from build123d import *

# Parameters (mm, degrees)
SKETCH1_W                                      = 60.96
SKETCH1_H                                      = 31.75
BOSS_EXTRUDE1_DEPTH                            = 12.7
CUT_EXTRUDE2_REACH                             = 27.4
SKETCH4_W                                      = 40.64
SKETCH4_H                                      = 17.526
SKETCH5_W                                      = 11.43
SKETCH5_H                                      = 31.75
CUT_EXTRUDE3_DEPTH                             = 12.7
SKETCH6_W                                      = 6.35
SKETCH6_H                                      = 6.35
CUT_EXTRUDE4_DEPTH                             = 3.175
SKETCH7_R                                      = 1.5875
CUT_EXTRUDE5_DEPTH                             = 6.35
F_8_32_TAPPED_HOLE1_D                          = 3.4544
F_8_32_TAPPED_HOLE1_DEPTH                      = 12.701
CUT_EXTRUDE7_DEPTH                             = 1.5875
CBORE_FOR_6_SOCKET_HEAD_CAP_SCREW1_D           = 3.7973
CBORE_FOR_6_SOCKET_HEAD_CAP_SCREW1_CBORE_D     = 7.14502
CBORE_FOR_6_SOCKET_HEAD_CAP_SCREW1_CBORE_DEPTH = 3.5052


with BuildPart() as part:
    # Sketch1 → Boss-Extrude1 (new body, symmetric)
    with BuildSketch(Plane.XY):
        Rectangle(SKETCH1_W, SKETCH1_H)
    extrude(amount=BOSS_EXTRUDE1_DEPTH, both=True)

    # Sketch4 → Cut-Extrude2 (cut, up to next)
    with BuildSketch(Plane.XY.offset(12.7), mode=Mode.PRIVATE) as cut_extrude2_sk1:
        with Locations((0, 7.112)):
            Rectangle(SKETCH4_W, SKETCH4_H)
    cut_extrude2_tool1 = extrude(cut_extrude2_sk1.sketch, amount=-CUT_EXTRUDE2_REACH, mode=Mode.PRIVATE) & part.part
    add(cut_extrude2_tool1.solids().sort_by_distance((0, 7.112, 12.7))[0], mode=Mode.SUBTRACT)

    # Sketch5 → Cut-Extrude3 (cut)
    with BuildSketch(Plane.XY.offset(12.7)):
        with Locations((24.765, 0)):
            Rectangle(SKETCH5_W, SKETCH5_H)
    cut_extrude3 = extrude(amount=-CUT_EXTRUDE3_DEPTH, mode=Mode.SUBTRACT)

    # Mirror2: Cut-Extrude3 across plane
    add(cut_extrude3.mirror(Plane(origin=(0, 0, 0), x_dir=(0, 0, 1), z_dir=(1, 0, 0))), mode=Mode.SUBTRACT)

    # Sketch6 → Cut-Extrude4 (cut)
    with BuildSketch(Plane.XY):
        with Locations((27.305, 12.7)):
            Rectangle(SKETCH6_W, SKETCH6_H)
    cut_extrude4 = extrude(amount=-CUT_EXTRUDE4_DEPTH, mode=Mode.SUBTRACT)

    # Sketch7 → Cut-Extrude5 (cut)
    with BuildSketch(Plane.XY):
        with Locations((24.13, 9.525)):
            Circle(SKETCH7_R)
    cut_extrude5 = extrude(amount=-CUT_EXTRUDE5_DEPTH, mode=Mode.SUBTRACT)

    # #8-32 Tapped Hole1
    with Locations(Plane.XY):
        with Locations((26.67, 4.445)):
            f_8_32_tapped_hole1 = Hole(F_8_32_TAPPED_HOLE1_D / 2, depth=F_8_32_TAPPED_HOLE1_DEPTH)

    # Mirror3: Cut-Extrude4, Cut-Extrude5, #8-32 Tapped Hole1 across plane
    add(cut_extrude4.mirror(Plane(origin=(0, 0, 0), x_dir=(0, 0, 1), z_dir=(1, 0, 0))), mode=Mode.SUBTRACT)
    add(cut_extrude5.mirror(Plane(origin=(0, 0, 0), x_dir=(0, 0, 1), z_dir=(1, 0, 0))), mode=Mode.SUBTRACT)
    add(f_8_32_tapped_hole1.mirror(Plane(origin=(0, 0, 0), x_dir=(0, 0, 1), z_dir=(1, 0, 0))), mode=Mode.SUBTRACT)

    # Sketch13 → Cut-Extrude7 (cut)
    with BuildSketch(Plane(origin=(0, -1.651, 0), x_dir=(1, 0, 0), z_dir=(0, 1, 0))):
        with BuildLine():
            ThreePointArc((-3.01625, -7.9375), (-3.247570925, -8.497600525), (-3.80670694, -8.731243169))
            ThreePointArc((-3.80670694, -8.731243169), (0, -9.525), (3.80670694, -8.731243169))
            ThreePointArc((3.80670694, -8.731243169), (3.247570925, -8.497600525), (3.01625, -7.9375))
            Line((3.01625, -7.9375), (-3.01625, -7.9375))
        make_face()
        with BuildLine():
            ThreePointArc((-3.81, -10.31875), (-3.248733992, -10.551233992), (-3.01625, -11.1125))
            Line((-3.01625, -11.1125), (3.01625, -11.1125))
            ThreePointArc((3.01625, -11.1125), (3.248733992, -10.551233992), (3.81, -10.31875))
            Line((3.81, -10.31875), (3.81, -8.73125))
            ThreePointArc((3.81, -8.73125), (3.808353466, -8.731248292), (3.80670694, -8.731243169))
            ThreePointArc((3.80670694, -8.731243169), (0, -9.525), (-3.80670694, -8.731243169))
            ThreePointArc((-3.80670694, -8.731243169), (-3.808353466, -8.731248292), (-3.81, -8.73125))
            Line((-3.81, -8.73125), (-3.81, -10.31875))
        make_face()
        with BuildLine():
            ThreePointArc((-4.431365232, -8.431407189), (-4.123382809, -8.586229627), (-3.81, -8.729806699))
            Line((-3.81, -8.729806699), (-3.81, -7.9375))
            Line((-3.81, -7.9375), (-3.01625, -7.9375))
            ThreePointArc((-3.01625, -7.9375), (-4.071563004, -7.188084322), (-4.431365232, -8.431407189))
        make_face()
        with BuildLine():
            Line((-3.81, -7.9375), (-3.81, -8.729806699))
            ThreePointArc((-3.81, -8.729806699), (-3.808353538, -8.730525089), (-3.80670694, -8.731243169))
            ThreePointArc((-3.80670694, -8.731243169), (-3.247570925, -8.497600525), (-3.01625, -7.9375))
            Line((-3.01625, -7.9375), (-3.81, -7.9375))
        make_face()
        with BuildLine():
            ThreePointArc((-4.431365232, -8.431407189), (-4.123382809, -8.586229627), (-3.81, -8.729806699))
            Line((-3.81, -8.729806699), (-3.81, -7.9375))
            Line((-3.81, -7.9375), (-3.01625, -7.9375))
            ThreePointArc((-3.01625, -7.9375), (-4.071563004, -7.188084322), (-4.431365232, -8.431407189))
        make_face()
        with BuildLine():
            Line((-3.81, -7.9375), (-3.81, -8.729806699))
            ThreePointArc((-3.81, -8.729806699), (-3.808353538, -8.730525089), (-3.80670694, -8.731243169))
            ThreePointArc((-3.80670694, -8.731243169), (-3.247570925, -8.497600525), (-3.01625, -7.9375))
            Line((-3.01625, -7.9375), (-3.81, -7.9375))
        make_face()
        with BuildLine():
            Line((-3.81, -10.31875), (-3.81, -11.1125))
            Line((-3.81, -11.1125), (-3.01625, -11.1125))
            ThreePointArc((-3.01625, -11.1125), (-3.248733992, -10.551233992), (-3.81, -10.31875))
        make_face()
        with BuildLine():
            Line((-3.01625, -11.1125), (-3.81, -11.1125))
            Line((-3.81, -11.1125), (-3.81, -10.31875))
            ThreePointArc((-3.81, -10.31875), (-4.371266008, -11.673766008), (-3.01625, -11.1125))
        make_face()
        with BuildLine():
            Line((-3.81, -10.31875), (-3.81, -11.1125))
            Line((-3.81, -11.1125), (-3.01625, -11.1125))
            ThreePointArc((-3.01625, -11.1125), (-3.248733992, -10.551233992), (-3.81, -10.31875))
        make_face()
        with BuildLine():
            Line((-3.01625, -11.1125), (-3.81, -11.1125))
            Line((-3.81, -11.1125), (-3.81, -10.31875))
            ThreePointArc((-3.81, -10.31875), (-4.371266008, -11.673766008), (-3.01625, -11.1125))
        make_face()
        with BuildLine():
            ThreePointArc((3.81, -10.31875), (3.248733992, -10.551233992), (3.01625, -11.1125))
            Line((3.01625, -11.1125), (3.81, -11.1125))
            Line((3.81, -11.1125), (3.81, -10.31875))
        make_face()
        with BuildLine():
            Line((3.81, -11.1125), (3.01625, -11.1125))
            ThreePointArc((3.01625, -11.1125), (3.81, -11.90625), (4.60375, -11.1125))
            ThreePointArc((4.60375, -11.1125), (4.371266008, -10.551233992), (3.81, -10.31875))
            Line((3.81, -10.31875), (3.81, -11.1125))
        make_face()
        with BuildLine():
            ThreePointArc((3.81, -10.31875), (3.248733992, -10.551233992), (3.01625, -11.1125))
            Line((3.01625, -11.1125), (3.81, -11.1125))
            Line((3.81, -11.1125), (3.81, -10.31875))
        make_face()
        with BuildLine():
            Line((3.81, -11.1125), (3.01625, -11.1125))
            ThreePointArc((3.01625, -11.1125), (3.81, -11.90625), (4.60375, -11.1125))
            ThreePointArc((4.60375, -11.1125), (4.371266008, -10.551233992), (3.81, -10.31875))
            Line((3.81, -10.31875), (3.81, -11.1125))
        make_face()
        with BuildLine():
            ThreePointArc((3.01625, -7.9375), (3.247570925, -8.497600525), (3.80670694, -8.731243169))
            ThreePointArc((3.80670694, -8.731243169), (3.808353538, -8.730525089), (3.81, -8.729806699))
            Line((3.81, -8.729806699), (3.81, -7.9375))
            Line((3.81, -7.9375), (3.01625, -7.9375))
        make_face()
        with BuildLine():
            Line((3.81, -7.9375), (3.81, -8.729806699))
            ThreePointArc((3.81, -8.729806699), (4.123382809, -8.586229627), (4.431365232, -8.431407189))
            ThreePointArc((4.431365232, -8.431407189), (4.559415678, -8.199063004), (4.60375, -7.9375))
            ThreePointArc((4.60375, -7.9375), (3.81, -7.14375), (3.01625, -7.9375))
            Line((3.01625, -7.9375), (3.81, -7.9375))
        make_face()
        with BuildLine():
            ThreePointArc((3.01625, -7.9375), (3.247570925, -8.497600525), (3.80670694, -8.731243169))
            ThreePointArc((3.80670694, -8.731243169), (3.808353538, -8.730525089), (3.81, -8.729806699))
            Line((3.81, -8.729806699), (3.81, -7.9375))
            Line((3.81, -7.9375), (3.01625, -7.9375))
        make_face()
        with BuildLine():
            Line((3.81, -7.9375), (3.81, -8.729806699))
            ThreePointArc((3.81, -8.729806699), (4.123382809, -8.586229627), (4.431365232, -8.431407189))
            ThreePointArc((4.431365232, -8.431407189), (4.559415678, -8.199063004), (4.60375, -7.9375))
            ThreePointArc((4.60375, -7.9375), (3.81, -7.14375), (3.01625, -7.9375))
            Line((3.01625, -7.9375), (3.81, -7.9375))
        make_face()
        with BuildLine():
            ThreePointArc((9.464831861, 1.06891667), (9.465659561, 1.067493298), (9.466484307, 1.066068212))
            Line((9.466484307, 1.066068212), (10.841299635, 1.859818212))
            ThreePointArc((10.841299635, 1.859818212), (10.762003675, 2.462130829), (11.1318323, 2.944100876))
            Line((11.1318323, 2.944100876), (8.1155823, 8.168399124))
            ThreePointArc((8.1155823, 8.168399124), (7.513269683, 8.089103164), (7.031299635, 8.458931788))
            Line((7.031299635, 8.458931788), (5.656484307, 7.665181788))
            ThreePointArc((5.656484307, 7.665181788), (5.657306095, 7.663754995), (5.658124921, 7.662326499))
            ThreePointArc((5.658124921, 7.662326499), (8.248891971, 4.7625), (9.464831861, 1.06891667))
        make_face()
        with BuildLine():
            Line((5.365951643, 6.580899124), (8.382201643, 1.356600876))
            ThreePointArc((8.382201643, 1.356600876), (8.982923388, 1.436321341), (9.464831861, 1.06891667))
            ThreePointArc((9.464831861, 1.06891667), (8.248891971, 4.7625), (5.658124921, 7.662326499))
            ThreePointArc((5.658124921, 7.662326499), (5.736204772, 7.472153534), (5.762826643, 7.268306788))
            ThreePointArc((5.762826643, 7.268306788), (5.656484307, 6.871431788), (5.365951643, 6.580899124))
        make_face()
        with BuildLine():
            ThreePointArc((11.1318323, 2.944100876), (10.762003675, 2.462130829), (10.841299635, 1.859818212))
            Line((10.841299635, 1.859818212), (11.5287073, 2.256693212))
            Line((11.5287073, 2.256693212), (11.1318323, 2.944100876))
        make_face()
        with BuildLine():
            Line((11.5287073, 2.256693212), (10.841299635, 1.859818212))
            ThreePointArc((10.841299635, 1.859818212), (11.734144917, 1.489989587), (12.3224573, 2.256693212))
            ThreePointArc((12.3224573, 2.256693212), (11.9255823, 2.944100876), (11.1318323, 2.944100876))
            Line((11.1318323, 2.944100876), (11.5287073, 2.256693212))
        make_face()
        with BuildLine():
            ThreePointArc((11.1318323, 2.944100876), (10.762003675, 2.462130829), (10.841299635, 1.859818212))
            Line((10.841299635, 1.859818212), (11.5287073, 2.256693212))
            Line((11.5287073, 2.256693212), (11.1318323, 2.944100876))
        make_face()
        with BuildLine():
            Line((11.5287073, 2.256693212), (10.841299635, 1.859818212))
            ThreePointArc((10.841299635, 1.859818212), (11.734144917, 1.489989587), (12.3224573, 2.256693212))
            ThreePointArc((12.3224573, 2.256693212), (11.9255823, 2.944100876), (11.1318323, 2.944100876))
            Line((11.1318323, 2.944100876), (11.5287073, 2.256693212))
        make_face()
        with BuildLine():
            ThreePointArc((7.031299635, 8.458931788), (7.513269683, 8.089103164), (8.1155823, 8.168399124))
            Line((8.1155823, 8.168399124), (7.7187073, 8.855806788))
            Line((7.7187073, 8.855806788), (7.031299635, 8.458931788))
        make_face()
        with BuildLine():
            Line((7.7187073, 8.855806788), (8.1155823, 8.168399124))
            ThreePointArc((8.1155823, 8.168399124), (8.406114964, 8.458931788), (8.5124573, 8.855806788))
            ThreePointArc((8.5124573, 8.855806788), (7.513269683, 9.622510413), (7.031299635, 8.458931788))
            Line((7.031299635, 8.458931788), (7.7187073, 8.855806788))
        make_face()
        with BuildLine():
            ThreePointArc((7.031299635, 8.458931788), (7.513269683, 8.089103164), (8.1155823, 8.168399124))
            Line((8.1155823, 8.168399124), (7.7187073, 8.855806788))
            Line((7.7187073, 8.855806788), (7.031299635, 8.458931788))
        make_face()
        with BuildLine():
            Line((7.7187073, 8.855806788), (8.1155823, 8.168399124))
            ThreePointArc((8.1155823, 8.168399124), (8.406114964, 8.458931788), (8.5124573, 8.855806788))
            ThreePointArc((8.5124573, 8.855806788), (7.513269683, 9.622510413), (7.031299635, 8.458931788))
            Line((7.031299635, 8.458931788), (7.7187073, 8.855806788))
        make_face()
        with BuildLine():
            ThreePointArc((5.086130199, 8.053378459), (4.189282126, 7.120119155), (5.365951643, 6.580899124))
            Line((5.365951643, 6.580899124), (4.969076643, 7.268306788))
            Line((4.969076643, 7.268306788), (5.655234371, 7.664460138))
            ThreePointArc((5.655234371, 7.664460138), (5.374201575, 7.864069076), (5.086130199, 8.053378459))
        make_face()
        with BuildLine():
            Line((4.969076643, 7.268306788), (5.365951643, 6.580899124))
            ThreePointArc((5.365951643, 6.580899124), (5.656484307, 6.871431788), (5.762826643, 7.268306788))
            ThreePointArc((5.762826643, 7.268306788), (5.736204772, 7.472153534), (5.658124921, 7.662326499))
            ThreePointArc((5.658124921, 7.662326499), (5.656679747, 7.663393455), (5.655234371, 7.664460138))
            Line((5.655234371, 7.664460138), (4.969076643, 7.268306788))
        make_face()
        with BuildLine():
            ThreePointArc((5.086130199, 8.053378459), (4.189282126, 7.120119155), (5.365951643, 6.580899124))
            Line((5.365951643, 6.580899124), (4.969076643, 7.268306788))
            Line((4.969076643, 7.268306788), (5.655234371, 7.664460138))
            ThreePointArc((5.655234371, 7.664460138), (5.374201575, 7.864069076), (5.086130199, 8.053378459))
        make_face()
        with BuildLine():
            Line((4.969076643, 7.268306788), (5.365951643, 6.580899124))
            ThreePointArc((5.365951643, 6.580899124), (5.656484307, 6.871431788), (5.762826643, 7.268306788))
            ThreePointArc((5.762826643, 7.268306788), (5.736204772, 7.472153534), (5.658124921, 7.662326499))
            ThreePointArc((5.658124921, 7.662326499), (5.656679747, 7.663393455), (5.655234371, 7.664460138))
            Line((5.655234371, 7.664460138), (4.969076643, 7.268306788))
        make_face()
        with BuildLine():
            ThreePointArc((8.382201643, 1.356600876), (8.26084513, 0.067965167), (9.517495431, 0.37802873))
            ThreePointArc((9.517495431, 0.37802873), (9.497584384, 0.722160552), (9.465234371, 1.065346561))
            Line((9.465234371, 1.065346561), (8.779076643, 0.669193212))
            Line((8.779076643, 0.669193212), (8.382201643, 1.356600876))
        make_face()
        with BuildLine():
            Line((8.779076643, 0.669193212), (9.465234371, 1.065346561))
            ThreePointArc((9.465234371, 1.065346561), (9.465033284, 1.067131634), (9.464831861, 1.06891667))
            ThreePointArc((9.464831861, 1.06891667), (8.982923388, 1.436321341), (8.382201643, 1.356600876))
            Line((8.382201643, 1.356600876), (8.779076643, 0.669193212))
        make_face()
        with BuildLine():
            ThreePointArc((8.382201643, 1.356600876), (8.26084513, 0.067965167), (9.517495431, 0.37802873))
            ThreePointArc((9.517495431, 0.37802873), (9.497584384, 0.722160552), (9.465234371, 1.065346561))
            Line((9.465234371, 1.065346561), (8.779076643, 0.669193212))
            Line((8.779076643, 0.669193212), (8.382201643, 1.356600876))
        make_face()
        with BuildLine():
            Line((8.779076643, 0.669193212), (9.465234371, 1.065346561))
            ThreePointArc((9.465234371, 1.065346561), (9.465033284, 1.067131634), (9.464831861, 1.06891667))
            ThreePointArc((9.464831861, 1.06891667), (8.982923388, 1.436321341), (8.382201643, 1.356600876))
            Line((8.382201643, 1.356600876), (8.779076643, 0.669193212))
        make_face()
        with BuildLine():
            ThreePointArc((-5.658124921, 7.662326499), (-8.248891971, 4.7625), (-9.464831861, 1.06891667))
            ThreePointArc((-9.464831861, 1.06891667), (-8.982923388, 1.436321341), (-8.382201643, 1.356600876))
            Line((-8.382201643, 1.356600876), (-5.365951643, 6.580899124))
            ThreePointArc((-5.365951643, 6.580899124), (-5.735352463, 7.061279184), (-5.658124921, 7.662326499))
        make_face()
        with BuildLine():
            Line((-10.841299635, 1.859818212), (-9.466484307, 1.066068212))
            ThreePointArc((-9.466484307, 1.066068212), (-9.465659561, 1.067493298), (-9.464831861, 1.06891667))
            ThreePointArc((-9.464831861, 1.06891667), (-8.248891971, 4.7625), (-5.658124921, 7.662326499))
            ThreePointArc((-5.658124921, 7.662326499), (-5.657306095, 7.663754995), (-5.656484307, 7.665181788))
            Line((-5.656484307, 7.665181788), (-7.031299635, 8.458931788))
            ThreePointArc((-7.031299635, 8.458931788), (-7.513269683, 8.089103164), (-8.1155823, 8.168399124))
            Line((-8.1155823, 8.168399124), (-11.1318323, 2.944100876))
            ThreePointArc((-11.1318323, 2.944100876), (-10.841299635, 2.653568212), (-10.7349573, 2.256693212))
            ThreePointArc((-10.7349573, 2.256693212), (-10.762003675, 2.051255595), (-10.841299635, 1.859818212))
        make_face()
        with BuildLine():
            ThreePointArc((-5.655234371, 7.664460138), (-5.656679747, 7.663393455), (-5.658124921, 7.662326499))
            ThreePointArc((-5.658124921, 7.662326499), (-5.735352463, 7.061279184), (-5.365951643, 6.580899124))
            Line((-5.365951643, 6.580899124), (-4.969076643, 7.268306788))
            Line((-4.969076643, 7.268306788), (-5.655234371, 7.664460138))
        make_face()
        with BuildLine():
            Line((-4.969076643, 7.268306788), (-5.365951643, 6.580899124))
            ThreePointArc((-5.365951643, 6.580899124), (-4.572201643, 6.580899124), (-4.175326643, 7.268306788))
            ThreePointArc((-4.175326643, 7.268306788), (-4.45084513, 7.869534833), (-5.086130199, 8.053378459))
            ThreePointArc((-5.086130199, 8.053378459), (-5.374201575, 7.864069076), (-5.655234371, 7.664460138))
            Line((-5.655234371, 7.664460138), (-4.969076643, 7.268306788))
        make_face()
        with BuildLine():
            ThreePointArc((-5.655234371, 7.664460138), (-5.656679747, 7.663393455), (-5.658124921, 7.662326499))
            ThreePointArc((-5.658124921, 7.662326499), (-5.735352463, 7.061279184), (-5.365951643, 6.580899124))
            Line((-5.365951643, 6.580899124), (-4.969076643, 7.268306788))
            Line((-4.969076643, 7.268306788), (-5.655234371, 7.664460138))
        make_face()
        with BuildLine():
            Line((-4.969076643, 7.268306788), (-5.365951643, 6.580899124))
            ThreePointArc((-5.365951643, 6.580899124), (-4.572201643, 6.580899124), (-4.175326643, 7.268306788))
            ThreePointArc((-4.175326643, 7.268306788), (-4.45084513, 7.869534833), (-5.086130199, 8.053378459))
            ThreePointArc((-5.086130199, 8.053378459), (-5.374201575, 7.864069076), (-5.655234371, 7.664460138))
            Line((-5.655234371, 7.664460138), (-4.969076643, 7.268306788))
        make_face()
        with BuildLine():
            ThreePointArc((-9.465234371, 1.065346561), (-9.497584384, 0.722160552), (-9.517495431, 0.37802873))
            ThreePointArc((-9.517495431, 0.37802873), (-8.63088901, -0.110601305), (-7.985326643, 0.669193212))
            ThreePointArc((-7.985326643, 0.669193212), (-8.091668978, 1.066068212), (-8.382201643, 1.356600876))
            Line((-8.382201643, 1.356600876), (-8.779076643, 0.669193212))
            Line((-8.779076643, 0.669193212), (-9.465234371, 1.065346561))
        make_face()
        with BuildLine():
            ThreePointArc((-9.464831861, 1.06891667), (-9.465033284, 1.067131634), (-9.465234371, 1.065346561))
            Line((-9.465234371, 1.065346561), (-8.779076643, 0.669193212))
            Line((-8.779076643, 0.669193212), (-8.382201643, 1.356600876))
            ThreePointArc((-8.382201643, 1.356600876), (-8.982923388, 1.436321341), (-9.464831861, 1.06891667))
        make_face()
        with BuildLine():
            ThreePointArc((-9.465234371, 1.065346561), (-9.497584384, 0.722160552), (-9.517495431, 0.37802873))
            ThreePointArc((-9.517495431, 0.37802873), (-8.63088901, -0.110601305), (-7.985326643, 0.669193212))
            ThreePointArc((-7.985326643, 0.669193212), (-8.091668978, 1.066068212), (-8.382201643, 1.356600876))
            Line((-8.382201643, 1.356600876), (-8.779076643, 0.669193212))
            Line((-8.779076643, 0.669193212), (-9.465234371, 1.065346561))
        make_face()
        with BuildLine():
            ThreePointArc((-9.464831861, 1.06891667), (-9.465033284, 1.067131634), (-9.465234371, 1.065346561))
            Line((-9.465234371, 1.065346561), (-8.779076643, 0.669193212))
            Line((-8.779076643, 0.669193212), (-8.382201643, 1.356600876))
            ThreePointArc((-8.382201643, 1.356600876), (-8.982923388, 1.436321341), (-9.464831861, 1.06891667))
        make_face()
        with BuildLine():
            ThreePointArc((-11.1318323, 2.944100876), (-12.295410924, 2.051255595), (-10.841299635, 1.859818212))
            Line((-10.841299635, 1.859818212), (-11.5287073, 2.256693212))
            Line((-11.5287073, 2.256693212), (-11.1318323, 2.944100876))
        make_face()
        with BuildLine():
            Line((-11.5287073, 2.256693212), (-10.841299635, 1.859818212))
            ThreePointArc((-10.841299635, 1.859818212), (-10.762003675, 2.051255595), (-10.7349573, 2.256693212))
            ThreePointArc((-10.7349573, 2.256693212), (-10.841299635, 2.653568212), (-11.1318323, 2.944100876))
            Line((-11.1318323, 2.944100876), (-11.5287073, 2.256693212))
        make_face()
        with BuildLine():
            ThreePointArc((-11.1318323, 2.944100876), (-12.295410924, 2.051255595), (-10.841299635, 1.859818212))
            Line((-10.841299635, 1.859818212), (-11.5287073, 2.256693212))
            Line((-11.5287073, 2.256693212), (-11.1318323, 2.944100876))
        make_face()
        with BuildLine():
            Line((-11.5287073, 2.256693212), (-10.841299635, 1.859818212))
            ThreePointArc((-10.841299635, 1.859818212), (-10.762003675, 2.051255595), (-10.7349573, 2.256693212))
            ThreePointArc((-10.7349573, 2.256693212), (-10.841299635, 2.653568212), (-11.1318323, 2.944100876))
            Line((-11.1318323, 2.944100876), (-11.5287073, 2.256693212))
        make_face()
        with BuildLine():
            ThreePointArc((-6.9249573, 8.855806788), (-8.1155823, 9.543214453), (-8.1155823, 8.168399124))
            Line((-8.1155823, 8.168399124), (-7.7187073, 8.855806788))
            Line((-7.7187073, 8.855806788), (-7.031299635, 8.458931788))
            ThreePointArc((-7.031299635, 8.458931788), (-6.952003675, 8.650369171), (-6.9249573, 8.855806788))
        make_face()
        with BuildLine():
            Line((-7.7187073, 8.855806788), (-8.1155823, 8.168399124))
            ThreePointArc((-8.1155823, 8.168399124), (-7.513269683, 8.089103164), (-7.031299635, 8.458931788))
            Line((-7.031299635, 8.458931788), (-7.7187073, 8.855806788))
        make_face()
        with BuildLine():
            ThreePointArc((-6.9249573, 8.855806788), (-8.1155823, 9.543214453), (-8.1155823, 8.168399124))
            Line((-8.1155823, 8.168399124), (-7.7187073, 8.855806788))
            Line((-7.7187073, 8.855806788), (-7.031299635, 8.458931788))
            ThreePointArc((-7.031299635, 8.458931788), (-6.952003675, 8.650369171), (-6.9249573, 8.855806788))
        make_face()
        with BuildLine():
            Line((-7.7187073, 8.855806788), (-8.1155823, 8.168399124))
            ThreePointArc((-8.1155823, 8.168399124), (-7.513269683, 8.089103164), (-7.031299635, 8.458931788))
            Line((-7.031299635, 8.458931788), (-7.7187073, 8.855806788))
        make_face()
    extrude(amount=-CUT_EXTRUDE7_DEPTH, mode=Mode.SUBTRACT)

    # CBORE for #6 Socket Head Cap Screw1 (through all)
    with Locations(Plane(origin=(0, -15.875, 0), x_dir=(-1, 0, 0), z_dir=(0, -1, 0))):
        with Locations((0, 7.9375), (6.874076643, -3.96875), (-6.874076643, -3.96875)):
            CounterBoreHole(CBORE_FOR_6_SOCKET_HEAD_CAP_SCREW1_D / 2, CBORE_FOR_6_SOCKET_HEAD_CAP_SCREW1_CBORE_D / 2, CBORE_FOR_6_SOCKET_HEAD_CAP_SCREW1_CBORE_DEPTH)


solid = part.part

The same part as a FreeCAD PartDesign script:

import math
import FreeCAD as App
import Part
import Sketcher

V = App.Vector
Q = App.Units.Quantity


def add_polygon(sketch, points):
    """Adds a closed chain of lines whose ends are joined by coincident constraints."""
    first, n = sketch.GeometryCount, len(points)
    for a, b in zip(points, points[1:] + points[:1]):
        sketch.addGeometry(Part.LineSegment(App.Vector(*a, 0), App.Vector(*b, 0)), False)
    for i in range(n):
        sketch.addConstraint(Sketcher.Constraint("Coincident", first + i, 2, first + (i + 1) % n, 1))

doc = App.newDocument("Part")
params = doc.addObject("Spreadsheet::Sheet", "Params")
for row, (alias, value) in enumerate([
    ("sketch1_width", "2.4 in"),
    ("sketch1_height", "1.25 in"),
    ("pad1_length", "1 in"),
    ("sketch2_width", "1.6 in"),
    ("sketch2_height", "0.69 in"),
    ("sketch3_width", "0.45 in"),
    ("sketch3_height", "1.25 in"),
    ("pocket2_length", "0.5 in"),
    ("sketch4_width", "0.25 in"),
    ("pocket3_length", "0.125 in"),
    ("sketch5_diameter", "0.125 in"),
    ("pocket4_length", "0.25 in"),
    ("sketch6_diameter", "0.136 in"),
    ("hole_diameter", "0.136 in"),
    ("hole_depth", "12.701 mm"),
    ("sketch7_radius", "0.375 in"),
    ("sketch7_radius2", "0.03125 in"),
    ("sketch7_radius3", "0.03125 in"),
    ("sketch7_radius4", "0.375 in"),
    ("sketch7_radius5", "0.03125 in"),
    ("pocket5_length", "0.0625 in"),
    ("hole2_diameter", "0.1495 in"),
    ("hole2_cbore_diameter", "0.2813 in"),
    ("hole2_cbore_depth", "0.138 in"),
], start=1):
    params.set(f"A{row}", alias)
    params.set(f"B{row}", "=" + value)
    params.setAlias(f"B{row}", alias)

body = doc.addObject("PartDesign::Body", "Body")

sketch1 = body.newObject("Sketcher::SketchObject", "Sketch")
sketch1.AttachmentSupport = (doc.getObject("XY_Plane"), [""])
sketch1.MapMode = "FlatFace"
add_polygon(sketch1, [(-30, 16), (-30, -16), (30, -16), (30, 16)])
sketch1.addConstraint(Sketcher.Constraint("Vertical", 0))
sketch1.addConstraint(Sketcher.Constraint("Horizontal", 1))
sketch1.addConstraint(Sketcher.Constraint("Vertical", 2))
sketch1.addConstraint(Sketcher.Constraint("Horizontal", 3))
sketch1.addConstraint(Sketcher.Constraint("Symmetric", 0, 2, 2, 2, -1, 1))
sketch1.addConstraint(Sketcher.Constraint("DistanceX", 1, 1, 1, 2, Q("2.4 in")))
sketch1.addConstraint(Sketcher.Constraint("DistanceY", 0, 2, 0, 1, Q("1.25 in")))
sketch1.setExpression("Constraints[9]", "Params.sketch1_width")
sketch1.setExpression("Constraints[10]", "Params.sketch1_height")
pad1 = body.newObject("PartDesign::Pad", "Pad")
pad1.Profile = sketch1
pad1.setExpression("Length", "Params.pad1_length")
pad1.Midplane = True

sketch2 = body.newObject("Sketcher::SketchObject", "Sketch001")
sketch2.AttachmentSupport = (doc.getObject("XY_Plane"), [""])
sketch2.MapMode = "FlatFace"
sketch2.AttachmentOffset = App.Placement(V(0, 0, 0.5 * 25.4), App.Rotation())
add_polygon(sketch2, [(-20, 16), (-20, -2), (20, -2), (20, 16)])
sketch2.addConstraint(Sketcher.Constraint("Vertical", 0))
sketch2.addConstraint(Sketcher.Constraint("Horizontal", 1))
sketch2.addConstraint(Sketcher.Constraint("Vertical", 2))
sketch2.addConstraint(Sketcher.Constraint("Horizontal", 3))
sketch2.addConstraint(Sketcher.Constraint("DistanceX", 1, 1, 1, 2, Q("1.6 in")))
sketch2.addConstraint(Sketcher.Constraint("DistanceY", 0, 2, 0, 1, Q("0.69 in")))
sketch2.addConstraint(Sketcher.Constraint("DistanceX", 0, 2, -1, 1, Q("0.8 in")))
sketch2.addConstraint(Sketcher.Constraint("DistanceY", 0, 2, -1, 1, Q("0.065 in")))
sketch2.setExpression("Constraints[8]", "Params.sketch2_width")
sketch2.setExpression("Constraints[9]", "Params.sketch2_height")
pocket1 = body.newObject("PartDesign::Pocket", "Pocket")
pocket1.Profile = sketch2
pocket1.Type = "UpToFirst"

sketch3 = body.newObject("Sketcher::SketchObject", "Sketch002")
sketch3.AttachmentSupport = (doc.getObject("XY_Plane"), [""])
sketch3.MapMode = "FlatFace"
sketch3.AttachmentOffset = App.Placement(V(0, 0, 0.5 * 25.4), App.Rotation())
add_polygon(sketch3, [(19, 16), (19, -16), (30, -16), (30, 16)])
sketch3.addConstraint(Sketcher.Constraint("Vertical", 0))
sketch3.addConstraint(Sketcher.Constraint("Horizontal", 1))
sketch3.addConstraint(Sketcher.Constraint("Vertical", 2))
sketch3.addConstraint(Sketcher.Constraint("Horizontal", 3))
sketch3.addConstraint(Sketcher.Constraint("DistanceX", 1, 1, 1, 2, Q("0.45 in")))
sketch3.addConstraint(Sketcher.Constraint("DistanceY", 0, 2, 0, 1, Q("1.25 in")))
sketch3.addConstraint(Sketcher.Constraint("DistanceX", -1, 1, 1, 2, Q("1.2 in")))
sketch3.addConstraint(Sketcher.Constraint("DistanceY", 0, 2, -1, 1, Q("0.625 in")))
sketch3.setExpression("Constraints[8]", "Params.sketch3_width")
sketch3.setExpression("Constraints[9]", "Params.sketch3_height")
pocket2 = body.newObject("PartDesign::Pocket", "Pocket001")
pocket2.Profile = sketch3
pocket2.setExpression("Length", "Params.pocket2_length")
doc.recompute()

mirrored = body.newObject("PartDesign::Mirrored", "Mirrored")
mirrored.Originals = [pocket2]
mirrored.MirrorPlane = (doc.getObject("YZ_Plane"), [""])
body.Tip = mirrored

sketch4 = body.newObject("Sketcher::SketchObject", "Sketch003")
sketch4.AttachmentSupport = (doc.getObject("XY_Plane"), [""])
sketch4.MapMode = "FlatFace"
add_polygon(sketch4, [(24, 16), (24, 10), (30, 10), (30, 16)])
sketch4.addConstraint(Sketcher.Constraint("Vertical", 0))
sketch4.addConstraint(Sketcher.Constraint("Horizontal", 1))
sketch4.addConstraint(Sketcher.Constraint("Vertical", 2))
sketch4.addConstraint(Sketcher.Constraint("Horizontal", 3))
sketch4.addConstraint(Sketcher.Constraint("Equal", 3, 0))
sketch4.addConstraint(Sketcher.Constraint("DistanceX", 1, 1, 1, 2, Q("0.25 in")))
sketch4.addConstraint(Sketcher.Constraint("DistanceX", -1, 1, 1, 2, Q("1.2 in")))
sketch4.addConstraint(Sketcher.Constraint("DistanceY", -1, 1, 0, 2, Q("0.375 in")))
sketch4.setExpression("Constraints[9]", "Params.sketch4_width")
pocket3 = body.newObject("PartDesign::Pocket", "Pocket002")
pocket3.Profile = sketch4
pocket3.setExpression("Length", "Params.pocket3_length")

sketch5 = body.newObject("Sketcher::SketchObject", "Sketch004")
sketch5.AttachmentSupport = (doc.getObject("XY_Plane"), [""])
sketch5.MapMode = "FlatFace"
sketch5.addGeometry(Part.Circle(V(24.1, 9.5, 0), V(0, 0, 1), 1.6), False)
sketch5.addConstraint(Sketcher.Constraint("Diameter", 0, Q("0.125 in")))
sketch5.addConstraint(Sketcher.Constraint("DistanceX", -1, 1, 0, 3, Q("0.95 in")))
sketch5.addConstraint(Sketcher.Constraint("DistanceY", -1, 1, 0, 3, Q("0.375 in")))
sketch5.setExpression("Constraints[0]", "Params.sketch5_diameter")
pocket4 = body.newObject("PartDesign::Pocket", "Pocket003")
pocket4.Profile = sketch5
pocket4.setExpression("Length", "Params.pocket4_length")

sketch6 = body.newObject("Sketcher::SketchObject", "Sketch005")
sketch6.AttachmentSupport = (doc.getObject("XY_Plane"), [""])
sketch6.MapMode = "FlatFace"
sketch6.addGeometry(Part.Circle(V(26.7, 4.4, 0), V(0, 0, 1), 1.7), False)
sketch6.addConstraint(Sketcher.Constraint("Diameter", 0, Q("0.136 in")))
sketch6.addConstraint(Sketcher.Constraint("DistanceX", -1, 1, 0, 3, Q("1.05 in")))
sketch6.addConstraint(Sketcher.Constraint("DistanceY", -1, 1, 0, 3, Q("0.175 in")))
sketch6.setExpression("Constraints[0]", "Params.sketch6_diameter")
doc.recompute()
hole = body.newObject("PartDesign::Hole", "Hole")
hole.Profile = sketch6
hole.ThreadType = "None"
hole.setExpression("Diameter", "Params.hole_diameter")
hole.DepthType = "Dimension"
hole.setExpression("Depth", "Params.hole_depth")
hole.DrillPoint = "Flat"
doc.recompute()

mirrored2 = body.newObject("PartDesign::Mirrored", "Mirrored001")
mirrored2.Originals = [pocket3, pocket4, hole]
mirrored2.MirrorPlane = (doc.getObject("YZ_Plane"), [""])
body.Tip = mirrored2

sketch7 = body.newObject("Sketcher::SketchObject", "Sketch006")
sketch7.AttachmentSupport = (doc.getObject("XZ_Plane"), [""])
sketch7.MapMode = "FlatFace"
sketch7.AttachmentOffset = App.Placement(V(0, 0, 0.065 * 25.4), App.Rotation())
sketch7.addGeometry(Part.ArcOfCircle(Part.Circle(V(-0.002981, -0.006833, 0), V(0, 0, 1), 9.532455), math.radians(66.421829), math.radians(66.443423)), False)
sketch7.addGeometry(Part.ArcOfCircle(Part.Circle(V(0, 0, 0), V(0, 0, 1), 9.525001), math.radians(62.274556), math.radians(66.421821)), False)
sketch7.addGeometry(Part.ArcOfCircle(Part.Circle(V(3.81, 7.9375, 0), V(0, 0, 1), 0.79375), math.radians(0), math.radians(38.480283)), False)
sketch7.addGeometry(Part.ArcOfCircle(Part.Circle(V(3.81, 7.9375, 0), V(0, 0, 1), 0.79375), math.radians(180), math.radians(360)), False)
sketch7.addGeometry(Part.LineSegment(V(3.01625, 7.9375, 0), V(-3.01625, 7.9375, 0)), False)
sketch7.addGeometry(Part.ArcOfCircle(Part.Circle(V(-3.81, 7.9375, 0), V(0, 0, 1), 0.79375), math.radians(141.519717), math.radians(360)), False)
sketch7.addGeometry(Part.ArcOfCircle(Part.Circle(V(0, 0, 0), V(0, 0, 1), 9.525001), math.radians(113.578179), math.radians(117.725444)), False)
sketch7.addGeometry(Part.ArcOfCircle(Part.Circle(V(0.002981, -0.006833, 0), V(0, 0, 1), 9.532455), math.radians(113.556577), math.radians(113.578171)), False)
sketch7.addGeometry(Part.ArcOfCircle(Part.Circle(V(-3.81, 7.937379, 0), V(0, 0, 1), 0.793871), math.radians(89.762313), math.radians(89.999983)), False)
sketch7.addGeometry(Part.LineSegment(V(-3.81, 8.73125, 0), V(-3.81, 10.31875, 0)), False)
sketch7.addGeometry(Part.ArcOfCircle(Part.Circle(V(-3.81, 11.1125, 0), V(0, 0, 1), 0.79375), math.radians(0), math.radians(270)), False)
sketch7.addGeometry(Part.LineSegment(V(-3.01625, 11.1125, 0), V(3.01625, 11.1125, 0)), False)
sketch7.addGeometry(Part.ArcOfCircle(Part.Circle(V(3.81, 11.1125, 0), V(0, 0, 1), 0.79375), math.radians(0), math.radians(180)), False)
sketch7.addGeometry(Part.ArcOfCircle(Part.Circle(V(3.81, 11.1125, 0), V(0, 0, 1), 0.79375), math.radians(-90), math.radians(0)), False)
sketch7.addGeometry(Part.LineSegment(V(3.81, 10.31875, 0), V(3.81, 8.73125, 0)), False)
sketch7.addGeometry(Part.ArcOfCircle(Part.Circle(V(3.81, 7.937379, 0), V(0, 0, 1), 0.793871), math.radians(90.000017), math.radians(90.237687)), False)
sketch7.addGeometry(Part.LineSegment(V(7.0313, -8.458932, 0), V(5.656484, -7.665182, 0)), False)
sketch7.addGeometry(Part.ArcOfCircle(Part.Circle(V(4.969307, -7.268439, 0), V(0, 0, 1), 0.793484), math.radians(-30.000039), math.radians(-29.762254)), False)
sketch7.addGeometry(Part.ArcOfCircle(Part.Circle(V(0.013696, -0.018555, 0), V(0, 0, 1), 9.501938), math.radians(-53.578206), math.radians(-53.556542)), False)
sketch7.addGeometry(Part.ArcOfCircle(Part.Circle(V(0, 0, 0), V(0, 0, 1), 9.525), math.radians(-57.725444), math.radians(-53.578178)), False)
sketch7.addGeometry(Part.ArcOfCircle(Part.Circle(V(4.969077, -7.268307, 0), V(0, 0, 1), 0.79375), math.radians(60), math.radians(278.480282)), False)
sketch7.addGeometry(Part.LineSegment(V(5.365952, -6.580899, 0), V(8.382202, -1.356601, 0)), False)
sketch7.addGeometry(Part.ArcOfCircle(Part.Circle(V(8.779077, -0.669193, 0), V(0, 0, 1), 0.79375), math.radians(21.519718), math.radians(240)), False)
sketch7.addGeometry(Part.ArcOfCircle(Part.Circle(V(0, 0, 0), V(0, 0, 1), 9.525), math.radians(-6.421822), math.radians(-2.274556)), False)
sketch7.addGeometry(Part.ArcOfCircle(Part.Circle(V(-0.021131, 0.002381, 0), V(0, 0, 1), 9.546265), math.radians(-6.443399), math.radians(-6.421836)), False)
sketch7.addGeometry(Part.ArcOfCircle(Part.Circle(V(8.77902, -0.66916, 0), V(0, 0, 1), 0.793815), math.radians(-30.237699), math.radians(-30.000013)), False)
sketch7.addGeometry(Part.LineSegment(V(9.466484, -1.066068, 0), V(10.8413, -1.859818, 0)), False)
sketch7.addGeometry(Part.ArcOfCircle(Part.Circle(V(11.528707, -2.256693, 0), V(0, 0, 1), 0.79375), math.radians(0), math.radians(150)), False)
sketch7.addGeometry(Part.ArcOfCircle(Part.Circle(V(11.528707, -2.256693, 0), V(0, 0, 1), 0.79375), math.radians(-120), math.radians(0)), False)
sketch7.addGeometry(Part.LineSegment(V(11.131832, -2.944101, 0), V(8.115582, -8.168399, 0)), False)
sketch7.addGeometry(Part.ArcOfCircle(Part.Circle(V(7.718707, -8.855807, 0), V(0, 0, 1), 0.79375), math.radians(0), math.radians(60)), False)
sketch7.addGeometry(Part.ArcOfCircle(Part.Circle(V(7.718707, -8.855807, 0), V(0, 0, 1), 0.79375), math.radians(150), math.radians(360)), False)
sketch7.addGeometry(Part.ArcOfCircle(Part.Circle(V(-4.969307, -7.268439, 0), V(0, 0, 1), 0.793484), math.radians(-150.237746), math.radians(-149.999961)), False)
sketch7.addGeometry(Part.LineSegment(V(-5.656484, -7.665182, 0), V(-7.0313, -8.458932, 0)), False)
sketch7.addGeometry(Part.ArcOfCircle(Part.Circle(V(-7.718707, -8.855807, 0), V(0, 0, 1), 0.79375), math.radians(0), math.radians(30)), False)
sketch7.addGeometry(Part.ArcOfCircle(Part.Circle(V(-7.718707, -8.855807, 0), V(0, 0, 1), 0.79375), math.radians(120), math.radians(360)), False)
sketch7.addGeometry(Part.LineSegment(V(-8.115582, -8.168399, 0), V(-11.131832, -2.944101, 0)), False)
sketch7.addGeometry(Part.ArcOfCircle(Part.Circle(V(-11.528707, -2.256693, 0), V(0, 0, 1), 0.79375), math.radians(30), math.radians(300)), False)
sketch7.addGeometry(Part.LineSegment(V(-10.8413, -1.859818, 0), V(-9.466484, -1.066068, 0)), False)
sketch7.addGeometry(Part.ArcOfCircle(Part.Circle(V(-8.77902, -0.66916, 0), V(0, 0, 1), 0.793815), math.radians(-149.999987), math.radians(-149.762301)), False)
sketch7.addGeometry(Part.ArcOfCircle(Part.Circle(V(0.021131, 0.002381, 0), V(0, 0, 1), 9.546265), math.radians(-173.578164), math.radians(-173.556601)), False)
sketch7.addGeometry(Part.ArcOfCircle(Part.Circle(V(0, 0, 0), V(0, 0, 1), 9.525), math.radians(-177.725444), math.radians(-173.578178)), False)
sketch7.addGeometry(Part.ArcOfCircle(Part.Circle(V(-8.779077, -0.669193, 0), V(0, 0, 1), 0.79375), math.radians(0), math.radians(158.480283)), False)
sketch7.addGeometry(Part.ArcOfCircle(Part.Circle(V(-8.779077, -0.669193, 0), V(0, 0, 1), 0.79375), math.radians(-60), math.radians(0)), False)
sketch7.addGeometry(Part.LineSegment(V(-8.382202, -1.356601, 0), V(-5.365952, -6.580899, 0)), False)
sketch7.addGeometry(Part.ArcOfCircle(Part.Circle(V(-4.969077, -7.268307, 0), V(0, 0, 1), 0.79375), math.radians(0), math.radians(120)), False)
sketch7.addGeometry(Part.ArcOfCircle(Part.Circle(V(-4.969077, -7.268307, 0), V(0, 0, 1), 0.79375), math.radians(-98.480282), math.radians(0)), False)
sketch7.addGeometry(Part.ArcOfCircle(Part.Circle(V(0, 0, 0), V(0, 0, 1), 9.525), math.radians(-126.421822), math.radians(-122.274556)), False)
sketch7.addGeometry(Part.ArcOfCircle(Part.Circle(V(-0.013696, -0.018555, 0), V(0, 0, 1), 9.501938), math.radians(-126.443458), math.radians(-126.421794)), False)
sketch7.addConstraint(Sketcher.Constraint("Coincident", 0, 1, 1, 2))
sketch7.addConstraint(Sketcher.Constraint("Coincident", 1, 1, 2, 2))
sketch7.addConstraint(Sketcher.Constraint("Coincident", 2, 1, 3, 2))
sketch7.addConstraint(Sketcher.Constraint("Coincident", 3, 1, 4, 1))
sketch7.addConstraint(Sketcher.Constraint("Coincident", 4, 2, 5, 2))
sketch7.addConstraint(Sketcher.Constraint("Coincident", 5, 1, 6, 2))
sketch7.addConstraint(Sketcher.Constraint("Coincident", 6, 1, 7, 2))
sketch7.addConstraint(Sketcher.Constraint("Coincident", 7, 1, 8, 1))
sketch7.addConstraint(Sketcher.Constraint("Coincident", 8, 2, 9, 1))
sketch7.addConstraint(Sketcher.Constraint("Coincident", 9, 2, 10, 2))
sketch7.addConstraint(Sketcher.Constraint("Coincident", 10, 1, 11, 1))
sketch7.addConstraint(Sketcher.Constraint("Coincident", 11, 2, 12, 2))
sketch7.addConstraint(Sketcher.Constraint("Coincident", 12, 1, 13, 2))
sketch7.addConstraint(Sketcher.Constraint("Coincident", 13, 1, 14, 1))
sketch7.addConstraint(Sketcher.Constraint("Coincident", 14, 2, 15, 1))
sketch7.addConstraint(Sketcher.Constraint("Coincident", 15, 2, 0, 2))
sketch7.addConstraint(Sketcher.Constraint("Coincident", 16, 2, 17, 1))
sketch7.addConstraint(Sketcher.Constraint("Coincident", 17, 2, 18, 2))
sketch7.addConstraint(Sketcher.Constraint("Coincident", 18, 1, 19, 2))
sketch7.addConstraint(Sketcher.Constraint("Coincident", 19, 1, 20, 2))
sketch7.addConstraint(Sketcher.Constraint("Coincident", 20, 1, 21, 1))
sketch7.addConstraint(Sketcher.Constraint("Coincident", 21, 2, 22, 2))
sketch7.addConstraint(Sketcher.Constraint("Coincident", 22, 1, 23, 2))
sketch7.addConstraint(Sketcher.Constraint("Coincident", 23, 1, 24, 2))
sketch7.addConstraint(Sketcher.Constraint("Coincident", 24, 1, 25, 1))
sketch7.addConstraint(Sketcher.Constraint("Coincident", 25, 2, 26, 1))
sketch7.addConstraint(Sketcher.Constraint("Coincident", 26, 2, 27, 2))
sketch7.addConstraint(Sketcher.Constraint("Coincident", 27, 1, 28, 2))
sketch7.addConstraint(Sketcher.Constraint("Coincident", 28, 1, 29, 1))
sketch7.addConstraint(Sketcher.Constraint("Coincident", 29, 2, 30, 2))
sketch7.addConstraint(Sketcher.Constraint("Coincident", 30, 1, 31, 2))
sketch7.addConstraint(Sketcher.Constraint("Coincident", 31, 1, 16, 1))
sketch7.addConstraint(Sketcher.Constraint("Coincident", 32, 2, 33, 1))
sketch7.addConstraint(Sketcher.Constraint("Coincident", 33, 2, 34, 2))
sketch7.addConstraint(Sketcher.Constraint("Coincident", 34, 1, 35, 2))
sketch7.addConstraint(Sketcher.Constraint("Coincident", 35, 1, 36, 1))
sketch7.addConstraint(Sketcher.Constraint("Coincident", 36, 2, 37, 2))
sketch7.addConstraint(Sketcher.Constraint("Coincident", 37, 1, 38, 1))
sketch7.addConstraint(Sketcher.Constraint("Coincident", 38, 2, 39, 1))
sketch7.addConstraint(Sketcher.Constraint("Coincident", 39, 2, 40, 2))
sketch7.addConstraint(Sketcher.Constraint("Coincident", 40, 1, 41, 2))
sketch7.addConstraint(Sketcher.Constraint("Coincident", 41, 1, 42, 2))
sketch7.addConstraint(Sketcher.Constraint("Coincident", 42, 1, 43, 2))
sketch7.addConstraint(Sketcher.Constraint("Coincident", 43, 1, 44, 1))
sketch7.addConstraint(Sketcher.Constraint("Coincident", 44, 2, 45, 2))
sketch7.addConstraint(Sketcher.Constraint("Coincident", 45, 1, 46, 2))
sketch7.addConstraint(Sketcher.Constraint("Coincident", 46, 1, 47, 2))
sketch7.addConstraint(Sketcher.Constraint("Coincident", 47, 1, 48, 2))
sketch7.addConstraint(Sketcher.Constraint("Coincident", 48, 1, 32, 1))
sketch7.addConstraint(Sketcher.Constraint("Horizontal", 4))
sketch7.addConstraint(Sketcher.Constraint("Vertical", 9))
sketch7.addConstraint(Sketcher.Constraint("Horizontal", 11))
sketch7.addConstraint(Sketcher.Constraint("Vertical", 14))
sketch7.addConstraint(Sketcher.Constraint("Coincident", 1, 3, -1, 1))
sketch7.addConstraint(Sketcher.Constraint("Coincident", 6, 3, -1, 1))
sketch7.addConstraint(Sketcher.Constraint("Coincident", 19, 3, -1, 1))
sketch7.addConstraint(Sketcher.Constraint("Coincident", 23, 3, -1, 1))
sketch7.addConstraint(Sketcher.Constraint("Coincident", 41, 3, -1, 1))
sketch7.addConstraint(Sketcher.Constraint("Coincident", 47, 3, -1, 1))
sketch7.addConstraint(Sketcher.Constraint("Coincident", 3, 3, 2, 3))
sketch7.addConstraint(Sketcher.Constraint("Coincident", 13, 3, 12, 3))
sketch7.addConstraint(Sketcher.Constraint("Coincident", 28, 3, 27, 3))
sketch7.addConstraint(Sketcher.Constraint("Coincident", 31, 3, 30, 3))
sketch7.addConstraint(Sketcher.Constraint("Coincident", 35, 3, 34, 3))
sketch7.addConstraint(Sketcher.Constraint("Coincident", 43, 3, 42, 3))
sketch7.addConstraint(Sketcher.Constraint("Coincident", 46, 3, 45, 3))
sketch7.addConstraint(Sketcher.Constraint("Radius", 1, Q("0.375 in")))
sketch7.addConstraint(Sketcher.Constraint("Radius", 2, Q("0.03125 in")))
sketch7.addConstraint(Sketcher.Constraint("Radius", 5, Q("0.03125 in")))
sketch7.addConstraint(Sketcher.Constraint("Radius", 6, Q("0.375 in")))
sketch7.addConstraint(Sketcher.Constraint("Radius", 10, Q("0.03125 in")))
sketch7.addConstraint(Sketcher.Constraint("Radius", 12, Q("0.03125 in")))
sketch7.addConstraint(Sketcher.Constraint("Radius", 19, Q("0.375 in")))
sketch7.addConstraint(Sketcher.Constraint("Radius", 20, Q("0.03125 in")))
sketch7.addConstraint(Sketcher.Constraint("Radius", 22, Q("0.03125 in")))
sketch7.addConstraint(Sketcher.Constraint("Radius", 23, Q("0.375 in")))
sketch7.addConstraint(Sketcher.Constraint("Radius", 27, Q("0.03125 in")))
sketch7.addConstraint(Sketcher.Constraint("Radius", 30, Q("0.03125 in")))
sketch7.addConstraint(Sketcher.Constraint("Radius", 34, Q("0.03125 in")))
sketch7.addConstraint(Sketcher.Constraint("Radius", 37, Q("0.03125 in")))
sketch7.addConstraint(Sketcher.Constraint("Radius", 41, Q("0.375 in")))
sketch7.addConstraint(Sketcher.Constraint("Radius", 42, Q("0.03125 in")))
sketch7.addConstraint(Sketcher.Constraint("Radius", 45, Q("0.03125 in")))
sketch7.addConstraint(Sketcher.Constraint("Radius", 47, Q("0.375 in")))
sketch7.addConstraint(Sketcher.Constraint("DistanceY", 9, 1, 9, 2, Q("0.0625 in")))
sketch7.addConstraint(Sketcher.Constraint("DistanceY", 14, 2, 14, 1, Q("0.0625 in")))
sketch7.addConstraint(Sketcher.Constraint("DistanceX", -1, 1, 2, 3, Q("0.15 in")))
sketch7.addConstraint(Sketcher.Constraint("DistanceX", 5, 3, -1, 1, Q("0.15 in")))
sketch7.addConstraint(Sketcher.Constraint("DistanceX", 8, 3, -1, 1, Q("0.15 in")))
sketch7.addConstraint(Sketcher.Constraint("DistanceX", 10, 3, -1, 1, Q("0.15 in")))
sketch7.addConstraint(Sketcher.Constraint("DistanceX", -1, 1, 12, 3, Q("0.15 in")))
sketch7.addConstraint(Sketcher.Constraint("DistanceX", -1, 1, 15, 3, Q("0.15 in")))
sketch7.addConstraint(Sketcher.Constraint("DistanceX", -1, 1, 0, 1, Q("0.15 in")))
sketch7.addConstraint(Sketcher.Constraint("DistanceX", 6, 1, -1, 1, Q("0.15 in")))
sketch7.addConstraint(Sketcher.Constraint("DistanceX", 8, 2, -1, 1, Q("0.15 in")))
sketch7.addConstraint(Sketcher.Constraint("DistanceX", -1, 1, 13, 1, Q("0.15 in")))
sketch7.addConstraint(Sketcher.Constraint("Distance", 16, Q("0.0625 in")))
sketch7.addConstraint(Sketcher.Constraint("Distance", 26, Q("0.0625 in")))
sketch7.addConstraint(Sketcher.Constraint("Distance", 33, Q("0.0625 in")))
sketch7.addConstraint(Sketcher.Constraint("Distance", 38, Q("0.0625 in")))
sketch7.addConstraint(Sketcher.Constraint("DistanceY", -1, 1, 2, 3, Q("0.3125 in")))
sketch7.addConstraint(Sketcher.Constraint("DistanceY", -1, 1, 5, 3, Q("0.3125 in")))
sketch7.addConstraint(Sketcher.Constraint("DistanceY", -1, 1, 10, 3, Q("0.4375 in")))
sketch7.addConstraint(Sketcher.Constraint("DistanceY", -1, 1, 12, 3, Q("0.4375 in")))
sketch7.addConstraint(Sketcher.Constraint("DistanceY", -1, 1, 2, 1, Q("0.3125 in")))
sketch7.addConstraint(Sketcher.Constraint("DistanceY", -1, 1, 3, 1, Q("0.3125 in")))
sketch7.addConstraint(Sketcher.Constraint("DistanceY", -1, 1, 10, 1, Q("0.4375 in")))
sketch7.addConstraint(Sketcher.Constraint("DistanceY", -1, 1, 12, 1, Q("0.4375 in")))
sketch7.addConstraint(Sketcher.Constraint("Radius", 8, Q("0.793871 mm")))
sketch7.addConstraint(Sketcher.Constraint("Radius", 15, Q("0.793871 mm")))
sketch7.addConstraint(Sketcher.Constraint("Distance", 21, Q("0.2375 in")))
sketch7.addConstraint(Sketcher.Constraint("Distance", 29, Q("0.2375 in")))
sketch7.addConstraint(Sketcher.Constraint("Distance", 36, Q("0.2375 in")))
sketch7.addConstraint(Sketcher.Constraint("Distance", 44, Q("0.2375 in")))
sketch7.addConstraint(Sketcher.Constraint("Radius", 0, Q("9.532455 mm")))
sketch7.addConstraint(Sketcher.Constraint("Radius", 7, Q("9.532455 mm")))
sketch7.addConstraint(Sketcher.Constraint("Radius", 17, Q("0.793484 mm")))
sketch7.addConstraint(Sketcher.Constraint("Radius", 18, Q("9.501938 mm")))
sketch7.addConstraint(Sketcher.Constraint("Radius", 24, Q("9.546265 mm")))
sketch7.addConstraint(Sketcher.Constraint("Radius", 25, Q("0.793815 mm")))
sketch7.addConstraint(Sketcher.Constraint("Radius", 32, Q("0.793484 mm")))
sketch7.addConstraint(Sketcher.Constraint("Radius", 39, Q("0.793815 mm")))
sketch7.addConstraint(Sketcher.Constraint("Radius", 40, Q("9.546265 mm")))
sketch7.addConstraint(Sketcher.Constraint("Radius", 48, Q("9.501938 mm")))
sketch7.addConstraint(Sketcher.Constraint("DistanceY", 20, 1, -1, 1, Q("6.580899 mm")))
sketch7.addConstraint(Sketcher.Constraint("DistanceX", -1, 1, 21, 2, Q("8.382202 mm")))
sketch7.addConstraint(Sketcher.Constraint("DistanceY", 21, 2, -1, 1, Q("1.356601 mm")))
sketch7.addConstraint(Sketcher.Constraint("DistanceX", -1, 1, 26, 2, Q("10.8413 mm")))
sketch7.addConstraint(Sketcher.Constraint("DistanceY", 28, 1, -1, 1, Q("2.944101 mm")))
sketch7.addConstraint(Sketcher.Constraint("DistanceY", 29, 2, -1, 1, Q("8.168399 mm")))
sketch7.addConstraint(Sketcher.Constraint("DistanceX", -1, 1, 31, 1, Q("7.0313 mm")))
sketch7.addConstraint(Sketcher.Constraint("DistanceX", 33, 2, -1, 1, Q("7.0313 mm")))
sketch7.addConstraint(Sketcher.Constraint("DistanceY", 35, 1, -1, 1, Q("8.168399 mm")))
sketch7.addConstraint(Sketcher.Constraint("DistanceY", 36, 2, -1, 1, Q("2.944101 mm")))
sketch7.addConstraint(Sketcher.Constraint("DistanceX", 37, 1, -1, 1, Q("10.8413 mm")))
sketch7.addConstraint(Sketcher.Constraint("DistanceX", 43, 1, -1, 1, Q("8.382202 mm")))
sketch7.addConstraint(Sketcher.Constraint("DistanceY", 43, 1, -1, 1, Q("1.356601 mm")))
sketch7.addConstraint(Sketcher.Constraint("DistanceY", 44, 2, -1, 1, Q("6.580899 mm")))
sketch7.addConstraint(Sketcher.Constraint("DistanceX", 0, 3, -1, 1, Q("0.002981 mm")))
sketch7.addConstraint(Sketcher.Constraint("DistanceX", -1, 1, 7, 3, Q("0.002981 mm")))
sketch7.addConstraint(Sketcher.Constraint("DistanceY", 17, 3, -1, 1, Q("7.268439 mm")))
sketch7.addConstraint(Sketcher.Constraint("DistanceX", 24, 3, -1, 1, Q("0.021131 mm")))
sketch7.addConstraint(Sketcher.Constraint("DistanceX", -1, 1, 25, 3, Q("8.77902 mm")))
sketch7.addConstraint(Sketcher.Constraint("DistanceY", 25, 3, -1, 1, Q("0.66916 mm")))
sketch7.addConstraint(Sketcher.Constraint("DistanceY", 32, 3, -1, 1, Q("7.268439 mm")))
sketch7.addConstraint(Sketcher.Constraint("DistanceX", 39, 3, -1, 1, Q("8.77902 mm")))
sketch7.addConstraint(Sketcher.Constraint("DistanceY", 39, 3, -1, 1, Q("0.66916 mm")))
sketch7.addConstraint(Sketcher.Constraint("DistanceX", -1, 1, 40, 3, Q("0.021131 mm")))
sketch7.addConstraint(Sketcher.Constraint("DistanceY", 16, 2, -1, 1, Q("7.665182 mm")))
sketch7.addConstraint(Sketcher.Constraint("DistanceY", 18, 1, -1, 1, Q("7.66446 mm")))
sketch7.addConstraint(Sketcher.Constraint("DistanceX", -1, 1, 19, 1, Q("5.08613 mm")))
sketch7.addConstraint(Sketcher.Constraint("DistanceY", 22, 1, -1, 1, Q("0.378029 mm")))
sketch7.addConstraint(Sketcher.Constraint("DistanceY", 25, 2, -1, 1, Q("1.066068 mm")))
sketch7.addConstraint(Sketcher.Constraint("DistanceY", 31, 1, -1, 1, Q("8.458932 mm")))
sketch7.addConstraint(Sketcher.Constraint("DistanceY", 32, 2, -1, 1, Q("7.665182 mm")))
sketch7.addConstraint(Sketcher.Constraint("DistanceY", 33, 2, -1, 1, Q("8.458932 mm")))
sketch7.addConstraint(Sketcher.Constraint("DistanceY", 38, 2, -1, 1, Q("1.066068 mm")))
sketch7.addConstraint(Sketcher.Constraint("DistanceY", 41, 1, -1, 1, Q("0.378029 mm")))
sketch7.addConstraint(Sketcher.Constraint("DistanceX", 46, 1, -1, 1, Q("5.08613 mm")))
sketch7.addConstraint(Sketcher.Constraint("DistanceY", 47, 1, -1, 1, Q("7.66446 mm")))
sketch7.addConstraint(Sketcher.Constraint("DistanceX", -1, 1, 18, 3, Q("0.013696 mm")))
sketch7.addConstraint(Sketcher.Constraint("DistanceX", -1, 1, 27, 3, Q("11.528707 mm")))
sketch7.addConstraint(Sketcher.Constraint("DistanceX", 34, 3, -1, 1, Q("7.718707 mm")))
sketch7.addConstraint(Sketcher.Constraint("DistanceX", 48, 3, -1, 1, Q("0.013696 mm")))
sketch7.addConstraint(Sketcher.Constraint("DistanceX", -1, 1, 23, 1, Q("9.465234 mm")))
sketch7.addConstraint(Sketcher.Constraint("DistanceY", 27, 1, -1, 1, Q("2.256693 mm")))
sketch7.addConstraint(Sketcher.Constraint("DistanceY", 30, 1, -1, 1, Q("8.855807 mm")))
sketch7.addConstraint(Sketcher.Constraint("DistanceY", 34, 1, -1, 1, Q("8.855807 mm")))
sketch7.addConstraint(Sketcher.Constraint("DistanceX", 40, 1, -1, 1, Q("9.465234 mm")))
sketch7.addConstraint(Sketcher.Constraint("DistanceY", 42, 1, -1, 1, Q("0.669193 mm")))
sketch7.addConstraint(Sketcher.Constraint("DistanceY", 45, 1, -1, 1, Q("7.268307 mm")))
sketch7.setExpression("Constraints[66]", "Params.sketch7_radius")
sketch7.setExpression("Constraints[67]", "Params.sketch7_radius2")
sketch7.setExpression("Constraints[68]", "Params.sketch7_radius3")
sketch7.setExpression("Constraints[69]", "Params.sketch7_radius4")
sketch7.setExpression("Constraints[70]", "Params.sketch7_radius5")
pocket5 = body.newObject("PartDesign::Pocket", "Pocket004")
pocket5.Profile = sketch7
pocket5.setExpression("Length", "Params.pocket5_length")
pocket5.Reversed = True

sketch8 = body.newObject("Sketcher::SketchObject", "Sketch007")
sketch8.AttachmentSupport = (doc.getObject("XZ_Plane"), [""])
sketch8.MapMode = "FlatFace"
sketch8.AttachmentOffset = App.Placement(V(0, 0, 0.625 * 25.4), App.Rotation())
sketch8.addGeometry(Part.Circle(V(0, -7.9, 0), V(0, 0, 1), 1.9), False)
sketch8.addGeometry(Part.Circle(V(-6.9, 4, 0), V(0, 0, 1), 1.9), False)
sketch8.addGeometry(Part.Circle(V(6.9, 4, 0), V(0, 0, 1), 1.9), False)
sketch8.addConstraint(Sketcher.Constraint("Equal", 0, 1))
sketch8.addConstraint(Sketcher.Constraint("Equal", 1, 2))
sketch8.addConstraint(Sketcher.Constraint("Symmetric", 1, 3, 2, 3, -2))
sketch8.addConstraint(Sketcher.Constraint("PointOnObject", 0, 3, -2))
sketch8.addConstraint(Sketcher.Constraint("Diameter", 0, Q("0.1495 in")))
sketch8.addConstraint(Sketcher.Constraint("DistanceY", 0, 3, -1, 1, Q("0.3125 in")))
sketch8.addConstraint(Sketcher.Constraint("DistanceY", -1, 1, 1, 3, Q("0.15625 in")))
sketch8.addConstraint(Sketcher.Constraint("DistanceX", 1, 3, -1, 1, Q("6.874077 mm")))
doc.recompute()
hole2 = body.newObject("PartDesign::Hole", "Hole001")
hole2.Profile = sketch8
hole2.ThreadType = "None"
hole2.setExpression("Diameter", "Params.hole2_diameter")
hole2.DepthType = "ThroughAll"
hole2.HoleCutType = "Counterbore"
hole2.setExpression("HoleCutDiameter", "Params.hole2_cbore_diameter")
hole2.setExpression("HoleCutDepth", "Params.hole2_cbore_depth")

doc.recompute()
